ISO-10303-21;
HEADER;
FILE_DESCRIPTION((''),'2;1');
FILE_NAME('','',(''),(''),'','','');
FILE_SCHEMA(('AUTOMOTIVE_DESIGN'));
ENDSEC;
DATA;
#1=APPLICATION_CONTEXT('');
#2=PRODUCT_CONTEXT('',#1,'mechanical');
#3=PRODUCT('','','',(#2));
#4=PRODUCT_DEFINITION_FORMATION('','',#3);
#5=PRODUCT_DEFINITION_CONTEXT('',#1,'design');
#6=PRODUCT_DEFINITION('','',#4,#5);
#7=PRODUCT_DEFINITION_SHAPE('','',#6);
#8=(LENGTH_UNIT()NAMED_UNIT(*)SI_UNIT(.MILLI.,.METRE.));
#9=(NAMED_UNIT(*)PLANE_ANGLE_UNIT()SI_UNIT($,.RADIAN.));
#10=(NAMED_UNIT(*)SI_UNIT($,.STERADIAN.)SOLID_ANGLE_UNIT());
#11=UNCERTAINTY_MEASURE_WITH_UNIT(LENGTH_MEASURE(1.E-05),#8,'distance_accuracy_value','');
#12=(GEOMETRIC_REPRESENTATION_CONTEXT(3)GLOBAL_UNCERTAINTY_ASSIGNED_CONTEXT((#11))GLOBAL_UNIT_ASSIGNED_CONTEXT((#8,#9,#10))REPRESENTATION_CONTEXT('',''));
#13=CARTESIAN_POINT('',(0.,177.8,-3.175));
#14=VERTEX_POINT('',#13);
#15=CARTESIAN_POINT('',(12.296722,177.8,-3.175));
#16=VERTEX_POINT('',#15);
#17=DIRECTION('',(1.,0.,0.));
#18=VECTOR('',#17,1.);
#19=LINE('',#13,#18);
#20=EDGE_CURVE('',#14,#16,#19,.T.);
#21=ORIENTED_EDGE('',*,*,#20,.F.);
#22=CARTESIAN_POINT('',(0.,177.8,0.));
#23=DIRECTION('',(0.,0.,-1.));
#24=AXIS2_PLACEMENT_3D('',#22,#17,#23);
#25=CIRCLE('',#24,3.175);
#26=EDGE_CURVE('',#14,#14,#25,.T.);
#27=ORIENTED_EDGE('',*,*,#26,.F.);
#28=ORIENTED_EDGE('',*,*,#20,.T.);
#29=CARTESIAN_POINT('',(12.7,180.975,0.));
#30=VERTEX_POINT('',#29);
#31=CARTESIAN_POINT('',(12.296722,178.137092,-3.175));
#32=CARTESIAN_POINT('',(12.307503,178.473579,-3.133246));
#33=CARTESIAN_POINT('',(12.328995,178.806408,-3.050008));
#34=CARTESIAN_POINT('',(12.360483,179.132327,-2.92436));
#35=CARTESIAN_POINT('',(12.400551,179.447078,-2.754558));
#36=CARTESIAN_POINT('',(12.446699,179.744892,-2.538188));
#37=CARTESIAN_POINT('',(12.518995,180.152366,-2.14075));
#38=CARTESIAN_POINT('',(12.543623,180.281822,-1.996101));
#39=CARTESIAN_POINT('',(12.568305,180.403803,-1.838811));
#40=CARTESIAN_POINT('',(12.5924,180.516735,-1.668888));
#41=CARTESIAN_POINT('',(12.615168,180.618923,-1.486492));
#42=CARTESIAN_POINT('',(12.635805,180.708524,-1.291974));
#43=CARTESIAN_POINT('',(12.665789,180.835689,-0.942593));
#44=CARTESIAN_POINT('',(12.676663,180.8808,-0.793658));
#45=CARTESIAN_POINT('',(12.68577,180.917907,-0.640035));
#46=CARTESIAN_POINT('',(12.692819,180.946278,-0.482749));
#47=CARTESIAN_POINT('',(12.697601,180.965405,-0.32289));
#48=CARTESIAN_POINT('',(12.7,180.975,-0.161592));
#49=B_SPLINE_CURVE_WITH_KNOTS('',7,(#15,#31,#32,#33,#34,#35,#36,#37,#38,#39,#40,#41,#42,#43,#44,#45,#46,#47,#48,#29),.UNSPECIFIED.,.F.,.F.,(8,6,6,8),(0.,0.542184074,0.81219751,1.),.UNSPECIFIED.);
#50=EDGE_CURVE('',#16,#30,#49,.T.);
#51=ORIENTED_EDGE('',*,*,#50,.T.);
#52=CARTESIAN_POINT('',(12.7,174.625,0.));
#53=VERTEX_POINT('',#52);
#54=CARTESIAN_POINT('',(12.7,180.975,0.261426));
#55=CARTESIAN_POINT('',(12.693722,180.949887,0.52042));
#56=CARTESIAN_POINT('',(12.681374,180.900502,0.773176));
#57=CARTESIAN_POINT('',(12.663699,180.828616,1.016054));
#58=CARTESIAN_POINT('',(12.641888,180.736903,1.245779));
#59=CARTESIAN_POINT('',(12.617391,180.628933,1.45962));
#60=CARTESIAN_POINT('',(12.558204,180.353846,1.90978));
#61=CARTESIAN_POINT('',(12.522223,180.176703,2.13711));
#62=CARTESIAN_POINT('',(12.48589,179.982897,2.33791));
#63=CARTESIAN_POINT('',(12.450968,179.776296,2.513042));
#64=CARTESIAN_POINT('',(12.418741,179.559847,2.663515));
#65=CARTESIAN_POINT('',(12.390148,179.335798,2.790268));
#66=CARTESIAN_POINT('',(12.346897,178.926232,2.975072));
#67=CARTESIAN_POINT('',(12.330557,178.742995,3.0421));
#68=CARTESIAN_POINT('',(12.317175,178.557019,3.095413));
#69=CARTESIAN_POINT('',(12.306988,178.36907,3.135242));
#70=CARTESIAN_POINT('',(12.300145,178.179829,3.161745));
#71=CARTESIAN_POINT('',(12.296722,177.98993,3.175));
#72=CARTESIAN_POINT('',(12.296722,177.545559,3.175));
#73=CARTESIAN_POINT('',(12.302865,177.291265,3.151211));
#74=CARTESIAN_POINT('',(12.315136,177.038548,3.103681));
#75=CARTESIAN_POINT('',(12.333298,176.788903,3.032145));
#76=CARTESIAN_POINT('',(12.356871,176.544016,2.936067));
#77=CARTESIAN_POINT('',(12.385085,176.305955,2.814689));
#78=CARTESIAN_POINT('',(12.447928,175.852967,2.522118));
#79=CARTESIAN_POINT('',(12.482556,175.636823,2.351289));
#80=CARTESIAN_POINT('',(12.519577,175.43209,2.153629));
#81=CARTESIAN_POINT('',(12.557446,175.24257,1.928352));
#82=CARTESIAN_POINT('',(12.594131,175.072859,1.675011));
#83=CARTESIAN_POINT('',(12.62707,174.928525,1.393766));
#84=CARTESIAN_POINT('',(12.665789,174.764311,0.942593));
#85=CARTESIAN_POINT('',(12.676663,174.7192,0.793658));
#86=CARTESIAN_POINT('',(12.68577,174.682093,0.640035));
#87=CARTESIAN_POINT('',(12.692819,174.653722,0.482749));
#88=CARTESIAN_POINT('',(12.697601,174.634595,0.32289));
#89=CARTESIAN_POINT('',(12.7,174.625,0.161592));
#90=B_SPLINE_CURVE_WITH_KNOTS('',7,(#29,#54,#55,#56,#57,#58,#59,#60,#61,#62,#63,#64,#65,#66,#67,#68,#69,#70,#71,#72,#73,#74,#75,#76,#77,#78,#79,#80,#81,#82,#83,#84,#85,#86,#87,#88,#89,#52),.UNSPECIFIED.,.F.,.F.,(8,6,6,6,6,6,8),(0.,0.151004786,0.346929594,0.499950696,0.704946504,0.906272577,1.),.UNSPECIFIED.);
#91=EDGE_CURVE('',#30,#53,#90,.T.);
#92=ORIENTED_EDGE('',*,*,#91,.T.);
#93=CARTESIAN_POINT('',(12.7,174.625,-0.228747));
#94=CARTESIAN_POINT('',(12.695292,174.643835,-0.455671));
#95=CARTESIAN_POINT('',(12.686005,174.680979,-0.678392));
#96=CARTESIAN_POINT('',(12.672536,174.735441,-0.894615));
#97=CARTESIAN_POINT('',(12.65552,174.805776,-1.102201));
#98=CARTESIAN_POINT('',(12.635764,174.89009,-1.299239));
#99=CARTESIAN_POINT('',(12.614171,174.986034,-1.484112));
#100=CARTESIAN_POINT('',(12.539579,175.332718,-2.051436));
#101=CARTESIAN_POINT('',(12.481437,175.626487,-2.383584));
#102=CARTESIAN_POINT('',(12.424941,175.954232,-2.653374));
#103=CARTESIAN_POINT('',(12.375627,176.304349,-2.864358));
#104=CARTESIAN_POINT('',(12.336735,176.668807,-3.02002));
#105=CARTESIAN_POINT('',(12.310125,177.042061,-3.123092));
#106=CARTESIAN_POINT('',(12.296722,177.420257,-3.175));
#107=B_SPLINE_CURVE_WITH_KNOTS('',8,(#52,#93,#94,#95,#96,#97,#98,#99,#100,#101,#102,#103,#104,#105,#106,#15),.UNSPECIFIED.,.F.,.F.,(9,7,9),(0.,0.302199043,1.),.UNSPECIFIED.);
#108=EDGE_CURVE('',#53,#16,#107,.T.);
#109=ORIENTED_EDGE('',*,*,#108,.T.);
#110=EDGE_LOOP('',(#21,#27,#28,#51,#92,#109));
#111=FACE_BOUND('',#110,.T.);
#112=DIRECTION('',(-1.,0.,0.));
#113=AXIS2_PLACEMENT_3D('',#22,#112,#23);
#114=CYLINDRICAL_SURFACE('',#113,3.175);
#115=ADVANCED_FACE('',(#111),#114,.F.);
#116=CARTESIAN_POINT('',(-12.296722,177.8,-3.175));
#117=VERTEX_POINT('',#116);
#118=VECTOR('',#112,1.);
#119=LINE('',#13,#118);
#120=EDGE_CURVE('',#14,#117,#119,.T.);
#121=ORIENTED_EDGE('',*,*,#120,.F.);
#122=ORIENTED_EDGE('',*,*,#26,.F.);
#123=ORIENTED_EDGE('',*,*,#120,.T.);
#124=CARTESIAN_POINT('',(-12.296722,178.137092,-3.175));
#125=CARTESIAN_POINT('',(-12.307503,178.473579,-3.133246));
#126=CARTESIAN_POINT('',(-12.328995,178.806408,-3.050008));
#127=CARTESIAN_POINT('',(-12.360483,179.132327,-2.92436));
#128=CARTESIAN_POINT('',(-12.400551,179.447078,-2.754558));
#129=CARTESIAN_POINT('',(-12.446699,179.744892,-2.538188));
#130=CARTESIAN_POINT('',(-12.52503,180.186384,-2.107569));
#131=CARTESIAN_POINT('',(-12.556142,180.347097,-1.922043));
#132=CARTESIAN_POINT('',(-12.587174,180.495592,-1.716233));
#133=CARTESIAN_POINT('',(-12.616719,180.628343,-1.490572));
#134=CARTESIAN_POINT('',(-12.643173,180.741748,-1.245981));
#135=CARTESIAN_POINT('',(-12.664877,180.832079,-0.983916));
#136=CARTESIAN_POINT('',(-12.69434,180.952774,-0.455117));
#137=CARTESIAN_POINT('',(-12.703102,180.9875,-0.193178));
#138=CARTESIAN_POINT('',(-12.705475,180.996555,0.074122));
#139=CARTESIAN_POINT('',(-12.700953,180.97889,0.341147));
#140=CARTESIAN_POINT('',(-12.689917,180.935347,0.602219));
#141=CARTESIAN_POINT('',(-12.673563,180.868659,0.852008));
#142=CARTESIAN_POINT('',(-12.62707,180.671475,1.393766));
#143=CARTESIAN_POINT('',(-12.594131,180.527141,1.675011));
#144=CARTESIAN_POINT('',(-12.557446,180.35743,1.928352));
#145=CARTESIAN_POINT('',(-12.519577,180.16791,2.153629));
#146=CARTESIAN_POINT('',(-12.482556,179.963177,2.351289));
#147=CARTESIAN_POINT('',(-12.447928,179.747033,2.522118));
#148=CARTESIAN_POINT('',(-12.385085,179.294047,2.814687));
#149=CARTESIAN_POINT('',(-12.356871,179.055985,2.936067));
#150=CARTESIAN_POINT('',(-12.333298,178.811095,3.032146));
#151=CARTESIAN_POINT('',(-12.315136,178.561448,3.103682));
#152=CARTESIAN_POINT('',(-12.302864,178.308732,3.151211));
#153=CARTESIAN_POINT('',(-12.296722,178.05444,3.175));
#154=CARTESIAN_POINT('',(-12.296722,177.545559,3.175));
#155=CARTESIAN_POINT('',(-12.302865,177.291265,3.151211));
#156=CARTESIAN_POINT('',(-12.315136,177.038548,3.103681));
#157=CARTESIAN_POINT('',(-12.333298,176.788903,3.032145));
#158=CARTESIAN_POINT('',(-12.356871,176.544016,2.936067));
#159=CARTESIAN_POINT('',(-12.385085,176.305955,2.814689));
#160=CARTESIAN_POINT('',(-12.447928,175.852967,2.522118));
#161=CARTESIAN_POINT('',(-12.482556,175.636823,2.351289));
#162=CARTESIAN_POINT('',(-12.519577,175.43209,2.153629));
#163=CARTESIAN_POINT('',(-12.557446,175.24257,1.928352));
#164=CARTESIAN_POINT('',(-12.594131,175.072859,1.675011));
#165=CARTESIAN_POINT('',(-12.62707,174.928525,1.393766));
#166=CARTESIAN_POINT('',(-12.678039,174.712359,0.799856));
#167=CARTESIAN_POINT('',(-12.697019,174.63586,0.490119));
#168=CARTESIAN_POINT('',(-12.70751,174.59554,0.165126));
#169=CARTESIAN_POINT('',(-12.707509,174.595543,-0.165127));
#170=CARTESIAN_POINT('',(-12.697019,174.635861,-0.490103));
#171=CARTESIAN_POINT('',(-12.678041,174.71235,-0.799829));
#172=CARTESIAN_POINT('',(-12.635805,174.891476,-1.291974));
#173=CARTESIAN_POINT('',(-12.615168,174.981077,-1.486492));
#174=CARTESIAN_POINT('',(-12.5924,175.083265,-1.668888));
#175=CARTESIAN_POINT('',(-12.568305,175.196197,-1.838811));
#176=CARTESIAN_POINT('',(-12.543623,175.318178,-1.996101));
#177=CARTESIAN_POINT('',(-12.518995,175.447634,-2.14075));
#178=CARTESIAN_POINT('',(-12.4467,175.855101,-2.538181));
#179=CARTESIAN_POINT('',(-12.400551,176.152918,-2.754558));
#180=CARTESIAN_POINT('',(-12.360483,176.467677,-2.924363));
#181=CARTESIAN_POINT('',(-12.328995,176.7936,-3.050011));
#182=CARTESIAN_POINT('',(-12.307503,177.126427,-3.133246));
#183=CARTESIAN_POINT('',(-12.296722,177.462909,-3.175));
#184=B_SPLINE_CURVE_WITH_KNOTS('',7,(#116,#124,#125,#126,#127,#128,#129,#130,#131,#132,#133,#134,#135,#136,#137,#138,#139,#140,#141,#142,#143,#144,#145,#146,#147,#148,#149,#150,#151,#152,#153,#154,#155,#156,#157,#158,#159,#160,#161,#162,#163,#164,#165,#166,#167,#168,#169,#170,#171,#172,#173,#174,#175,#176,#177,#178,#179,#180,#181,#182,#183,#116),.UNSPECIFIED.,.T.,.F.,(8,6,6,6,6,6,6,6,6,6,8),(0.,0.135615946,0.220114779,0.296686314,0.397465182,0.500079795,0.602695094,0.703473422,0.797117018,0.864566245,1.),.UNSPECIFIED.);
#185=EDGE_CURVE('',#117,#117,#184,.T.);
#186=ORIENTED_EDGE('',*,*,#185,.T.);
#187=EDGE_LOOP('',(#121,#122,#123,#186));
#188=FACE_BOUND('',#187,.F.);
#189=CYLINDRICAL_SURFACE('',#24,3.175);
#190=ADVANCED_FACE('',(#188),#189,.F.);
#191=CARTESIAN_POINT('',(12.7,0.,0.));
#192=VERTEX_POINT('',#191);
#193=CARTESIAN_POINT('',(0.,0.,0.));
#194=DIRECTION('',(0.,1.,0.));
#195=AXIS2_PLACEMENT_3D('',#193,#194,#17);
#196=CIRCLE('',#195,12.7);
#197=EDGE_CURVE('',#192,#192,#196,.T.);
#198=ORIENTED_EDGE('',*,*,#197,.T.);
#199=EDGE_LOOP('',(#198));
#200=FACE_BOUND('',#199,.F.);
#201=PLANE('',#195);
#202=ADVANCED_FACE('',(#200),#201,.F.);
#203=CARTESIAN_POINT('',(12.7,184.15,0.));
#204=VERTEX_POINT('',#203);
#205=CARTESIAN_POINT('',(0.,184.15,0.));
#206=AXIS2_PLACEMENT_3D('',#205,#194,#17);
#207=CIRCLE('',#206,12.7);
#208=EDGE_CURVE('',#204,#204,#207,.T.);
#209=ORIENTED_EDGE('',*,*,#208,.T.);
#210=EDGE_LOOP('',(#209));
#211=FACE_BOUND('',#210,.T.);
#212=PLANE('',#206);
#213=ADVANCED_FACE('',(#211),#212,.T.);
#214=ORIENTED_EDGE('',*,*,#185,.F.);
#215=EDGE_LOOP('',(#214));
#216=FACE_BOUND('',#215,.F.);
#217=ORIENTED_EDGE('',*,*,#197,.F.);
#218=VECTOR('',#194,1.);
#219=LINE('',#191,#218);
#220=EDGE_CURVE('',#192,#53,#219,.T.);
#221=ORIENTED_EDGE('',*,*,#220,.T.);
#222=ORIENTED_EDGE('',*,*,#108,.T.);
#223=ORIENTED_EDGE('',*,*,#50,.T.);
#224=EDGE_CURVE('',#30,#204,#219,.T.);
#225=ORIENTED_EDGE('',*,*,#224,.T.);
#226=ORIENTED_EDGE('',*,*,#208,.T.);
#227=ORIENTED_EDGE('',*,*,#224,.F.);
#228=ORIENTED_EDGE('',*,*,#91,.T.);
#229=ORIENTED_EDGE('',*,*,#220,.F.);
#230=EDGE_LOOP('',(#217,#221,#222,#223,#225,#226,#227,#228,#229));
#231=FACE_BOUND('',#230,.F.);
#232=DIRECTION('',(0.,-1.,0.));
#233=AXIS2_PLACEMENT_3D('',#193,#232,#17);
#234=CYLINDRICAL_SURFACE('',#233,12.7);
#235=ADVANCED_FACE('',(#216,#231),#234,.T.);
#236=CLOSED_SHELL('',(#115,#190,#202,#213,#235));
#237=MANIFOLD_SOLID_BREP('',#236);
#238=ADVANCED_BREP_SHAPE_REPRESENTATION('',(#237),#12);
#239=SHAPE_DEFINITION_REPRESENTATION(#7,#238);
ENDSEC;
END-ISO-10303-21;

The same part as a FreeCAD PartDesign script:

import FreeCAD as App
import Part
import Sketcher
from FreeCAD import Vector
Q = App.Units.Quantity

doc = App.newDocument("Part")
body = doc.addObject("PartDesign::Body", "Body")

# Sketch on XZ plane
sketch1 = doc.addObject("Sketcher::SketchObject", "Sketch")
body.addObject(sketch1)
sketch1.AttachmentSupport = (doc.XZ_Plane, [""])
sketch1.MapMode = "FlatFace"
sketch1.addGeometry(Part.Circle(Vector(0, 0, 0), Vector(0, 0, 1), 13), False)
sketch1.addConstraint([
    Sketcher.Constraint("Coincident", 0, 3, -1, 1),
    Sketcher.Constraint("Diameter", 0, Q("1 in")),
])
pad1 = doc.addObject("PartDesign::Pad", "Pad")
body.addObject(pad1)
pad1.Profile = sketch1
pad1.Length = Q("7.25 in")
pad1.Reversed = True

# Sketch on YZ plane
sketch2 = doc.addObject("Sketcher::SketchObject", "Sketch001")
body.addObject(sketch2)
sketch2.AttachmentSupport = (doc.YZ_Plane, [""])
sketch2.MapMode = "FlatFace"
sketch2.addGeometry(Part.Circle(Vector(177.8, 0, 0), Vector(0, 0, 1), 3.2), False)
sketch2.addConstraint([
    Sketcher.Constraint("PointOnObject", 0, 3, -1),
    Sketcher.Constraint("Diameter", 0, Q("0.25 in")),
    Sketcher.Constraint("DistanceX", -1, 1, 0, 3, Q("7 in")),
])
pocket1 = doc.addObject("PartDesign::Pocket", "Pocket")
body.addObject(pocket1)
pocket1.Profile = sketch2
pocket1.Type = "ThroughAll"
pocket1.Midplane = True

doc.recompute()
